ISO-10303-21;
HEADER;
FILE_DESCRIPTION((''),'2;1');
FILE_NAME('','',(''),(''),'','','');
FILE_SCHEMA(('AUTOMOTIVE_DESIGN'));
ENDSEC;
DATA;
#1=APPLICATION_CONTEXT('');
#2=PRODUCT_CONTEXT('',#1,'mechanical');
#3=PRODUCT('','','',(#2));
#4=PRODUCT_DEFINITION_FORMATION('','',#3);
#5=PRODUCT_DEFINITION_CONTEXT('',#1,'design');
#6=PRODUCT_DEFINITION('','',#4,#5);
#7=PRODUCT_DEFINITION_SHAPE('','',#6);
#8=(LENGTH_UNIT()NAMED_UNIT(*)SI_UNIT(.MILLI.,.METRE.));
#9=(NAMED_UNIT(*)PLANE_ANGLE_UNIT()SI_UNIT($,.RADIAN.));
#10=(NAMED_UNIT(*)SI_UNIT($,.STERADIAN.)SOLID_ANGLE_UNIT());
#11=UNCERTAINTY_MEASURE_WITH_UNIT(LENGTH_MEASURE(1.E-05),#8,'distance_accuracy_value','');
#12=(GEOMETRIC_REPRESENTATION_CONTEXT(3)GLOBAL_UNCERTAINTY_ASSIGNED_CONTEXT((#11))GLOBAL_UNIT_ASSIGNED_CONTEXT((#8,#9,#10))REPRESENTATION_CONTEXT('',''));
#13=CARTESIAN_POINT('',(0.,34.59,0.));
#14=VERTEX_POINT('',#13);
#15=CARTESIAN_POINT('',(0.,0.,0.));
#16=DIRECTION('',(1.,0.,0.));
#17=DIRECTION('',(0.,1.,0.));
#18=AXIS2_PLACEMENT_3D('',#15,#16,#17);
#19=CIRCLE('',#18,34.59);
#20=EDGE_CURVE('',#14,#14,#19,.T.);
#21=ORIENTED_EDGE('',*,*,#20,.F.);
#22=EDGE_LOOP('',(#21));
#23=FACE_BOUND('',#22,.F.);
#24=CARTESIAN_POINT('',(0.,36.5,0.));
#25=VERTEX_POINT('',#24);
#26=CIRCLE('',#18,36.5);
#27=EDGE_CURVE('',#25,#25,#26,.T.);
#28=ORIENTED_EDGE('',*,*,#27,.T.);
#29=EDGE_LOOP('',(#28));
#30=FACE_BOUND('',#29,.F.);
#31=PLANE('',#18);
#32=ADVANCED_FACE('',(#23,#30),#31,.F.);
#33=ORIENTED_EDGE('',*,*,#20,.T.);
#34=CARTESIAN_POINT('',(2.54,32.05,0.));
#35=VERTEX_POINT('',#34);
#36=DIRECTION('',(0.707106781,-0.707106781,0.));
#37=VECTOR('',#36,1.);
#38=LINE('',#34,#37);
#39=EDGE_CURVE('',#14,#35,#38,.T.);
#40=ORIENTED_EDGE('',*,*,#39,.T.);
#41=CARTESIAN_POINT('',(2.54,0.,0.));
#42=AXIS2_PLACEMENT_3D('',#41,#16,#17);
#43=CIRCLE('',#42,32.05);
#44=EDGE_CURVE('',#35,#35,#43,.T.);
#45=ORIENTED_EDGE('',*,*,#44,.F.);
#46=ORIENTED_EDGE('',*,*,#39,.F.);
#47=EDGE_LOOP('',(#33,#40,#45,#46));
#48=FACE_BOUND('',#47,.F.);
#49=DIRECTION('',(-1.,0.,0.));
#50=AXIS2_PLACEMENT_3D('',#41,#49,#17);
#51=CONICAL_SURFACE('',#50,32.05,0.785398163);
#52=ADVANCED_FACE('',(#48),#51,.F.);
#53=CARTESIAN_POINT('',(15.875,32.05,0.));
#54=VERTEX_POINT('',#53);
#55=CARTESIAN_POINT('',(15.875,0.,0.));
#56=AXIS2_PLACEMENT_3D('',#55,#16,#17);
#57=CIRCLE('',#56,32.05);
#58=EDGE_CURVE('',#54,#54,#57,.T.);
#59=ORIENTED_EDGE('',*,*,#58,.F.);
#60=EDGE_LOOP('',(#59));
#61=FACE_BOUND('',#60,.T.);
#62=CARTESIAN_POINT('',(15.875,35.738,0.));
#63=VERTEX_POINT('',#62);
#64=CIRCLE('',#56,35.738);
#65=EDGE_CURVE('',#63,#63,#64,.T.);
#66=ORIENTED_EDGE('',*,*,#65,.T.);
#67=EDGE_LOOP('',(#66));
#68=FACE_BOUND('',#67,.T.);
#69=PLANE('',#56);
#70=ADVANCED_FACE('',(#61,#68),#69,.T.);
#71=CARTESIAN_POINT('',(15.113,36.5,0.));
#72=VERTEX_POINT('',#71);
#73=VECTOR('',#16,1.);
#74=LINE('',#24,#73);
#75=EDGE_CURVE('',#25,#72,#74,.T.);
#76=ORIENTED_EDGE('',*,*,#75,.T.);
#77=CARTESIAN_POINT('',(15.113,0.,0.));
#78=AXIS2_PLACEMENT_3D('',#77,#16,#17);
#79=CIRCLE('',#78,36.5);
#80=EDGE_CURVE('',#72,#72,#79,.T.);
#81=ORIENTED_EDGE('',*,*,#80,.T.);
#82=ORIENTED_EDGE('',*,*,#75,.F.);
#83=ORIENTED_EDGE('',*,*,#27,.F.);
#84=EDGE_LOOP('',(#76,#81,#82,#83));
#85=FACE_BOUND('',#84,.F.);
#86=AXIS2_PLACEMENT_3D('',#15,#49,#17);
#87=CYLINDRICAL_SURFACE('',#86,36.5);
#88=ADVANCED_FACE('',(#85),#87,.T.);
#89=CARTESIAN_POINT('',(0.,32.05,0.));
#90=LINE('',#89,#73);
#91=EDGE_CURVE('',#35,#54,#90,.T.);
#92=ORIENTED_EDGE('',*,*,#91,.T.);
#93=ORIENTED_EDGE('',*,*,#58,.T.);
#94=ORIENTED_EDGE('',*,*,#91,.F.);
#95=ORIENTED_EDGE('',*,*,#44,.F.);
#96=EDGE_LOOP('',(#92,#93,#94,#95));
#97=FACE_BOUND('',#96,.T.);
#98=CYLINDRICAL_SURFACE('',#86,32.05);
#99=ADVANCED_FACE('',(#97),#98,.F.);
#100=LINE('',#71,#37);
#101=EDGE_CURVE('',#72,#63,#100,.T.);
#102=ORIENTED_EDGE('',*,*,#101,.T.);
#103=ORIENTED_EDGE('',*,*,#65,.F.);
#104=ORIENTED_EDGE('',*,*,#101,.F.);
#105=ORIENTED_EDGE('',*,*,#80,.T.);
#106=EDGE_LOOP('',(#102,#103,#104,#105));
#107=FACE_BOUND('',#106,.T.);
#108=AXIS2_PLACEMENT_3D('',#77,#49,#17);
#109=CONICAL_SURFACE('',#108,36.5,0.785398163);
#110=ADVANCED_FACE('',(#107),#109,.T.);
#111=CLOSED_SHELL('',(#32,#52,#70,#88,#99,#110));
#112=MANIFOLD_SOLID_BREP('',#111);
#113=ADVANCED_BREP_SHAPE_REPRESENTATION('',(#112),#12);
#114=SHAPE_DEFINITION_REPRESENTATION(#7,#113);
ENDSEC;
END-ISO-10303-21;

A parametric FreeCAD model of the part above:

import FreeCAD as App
import Part
import Sketcher

V = App.Vector
Q = App.Units.Quantity


def edges_at(feature, points):
    """Names of the edges that pass closest to the given points."""
    edges = feature.Shape.Edges
    near = lambda p: min(range(len(edges)), key=lambda i: edges[i].distToShape(Part.Vertex(*p))[0])
    return sorted({f"Edge{near(p) + 1}" for p in points})

doc = App.newDocument("Part")
body = doc.addObject("PartDesign::Body", "Body")

# Sketch on YZ plane
sketch1 = body.newObject("Sketcher::SketchObject", "Sketch")
sketch1.AttachmentSupport = (doc.getObject("YZ_Plane"), [""])
sketch1.MapMode = "FlatFace"
sketch1.addGeometry([
    Part.Circle(V(0, 0, 0), V(0, 0, 1), 36.5),
    Part.Circle(V(0, 0, 0), V(0, 0, 1), 32.05),
], False)
sketch1.addConstraint([
    Sketcher.Constraint("Coincident", 0, 3, -1, 1),
    Sketcher.Constraint("Coincident", 1, 3, -1, 1),
    Sketcher.Constraint("Diameter", 0, 73.0),
    Sketcher.Constraint("Diameter", 1, 64.1),
])
pad1 = body.newObject("PartDesign::Pad", "Pad")
pad1.Profile = sketch1
pad1.Length = Q("0.625 in")
doc.recompute()

chamfer = body.newObject("PartDesign::Chamfer", "Chamfer")
chamfer.Base = (pad1, edges_at(pad1, [(15.875, -36.5, 0)]))
chamfer.Size = Q("0.03 in")
doc.recompute()

chamfer2 = body.newObject("PartDesign::Chamfer", "Chamfer001")
chamfer2.Base = (chamfer, edges_at(chamfer, [(0, -32.05, 0)]))
chamfer2.Size = Q("0.1 in")

doc.recompute()
